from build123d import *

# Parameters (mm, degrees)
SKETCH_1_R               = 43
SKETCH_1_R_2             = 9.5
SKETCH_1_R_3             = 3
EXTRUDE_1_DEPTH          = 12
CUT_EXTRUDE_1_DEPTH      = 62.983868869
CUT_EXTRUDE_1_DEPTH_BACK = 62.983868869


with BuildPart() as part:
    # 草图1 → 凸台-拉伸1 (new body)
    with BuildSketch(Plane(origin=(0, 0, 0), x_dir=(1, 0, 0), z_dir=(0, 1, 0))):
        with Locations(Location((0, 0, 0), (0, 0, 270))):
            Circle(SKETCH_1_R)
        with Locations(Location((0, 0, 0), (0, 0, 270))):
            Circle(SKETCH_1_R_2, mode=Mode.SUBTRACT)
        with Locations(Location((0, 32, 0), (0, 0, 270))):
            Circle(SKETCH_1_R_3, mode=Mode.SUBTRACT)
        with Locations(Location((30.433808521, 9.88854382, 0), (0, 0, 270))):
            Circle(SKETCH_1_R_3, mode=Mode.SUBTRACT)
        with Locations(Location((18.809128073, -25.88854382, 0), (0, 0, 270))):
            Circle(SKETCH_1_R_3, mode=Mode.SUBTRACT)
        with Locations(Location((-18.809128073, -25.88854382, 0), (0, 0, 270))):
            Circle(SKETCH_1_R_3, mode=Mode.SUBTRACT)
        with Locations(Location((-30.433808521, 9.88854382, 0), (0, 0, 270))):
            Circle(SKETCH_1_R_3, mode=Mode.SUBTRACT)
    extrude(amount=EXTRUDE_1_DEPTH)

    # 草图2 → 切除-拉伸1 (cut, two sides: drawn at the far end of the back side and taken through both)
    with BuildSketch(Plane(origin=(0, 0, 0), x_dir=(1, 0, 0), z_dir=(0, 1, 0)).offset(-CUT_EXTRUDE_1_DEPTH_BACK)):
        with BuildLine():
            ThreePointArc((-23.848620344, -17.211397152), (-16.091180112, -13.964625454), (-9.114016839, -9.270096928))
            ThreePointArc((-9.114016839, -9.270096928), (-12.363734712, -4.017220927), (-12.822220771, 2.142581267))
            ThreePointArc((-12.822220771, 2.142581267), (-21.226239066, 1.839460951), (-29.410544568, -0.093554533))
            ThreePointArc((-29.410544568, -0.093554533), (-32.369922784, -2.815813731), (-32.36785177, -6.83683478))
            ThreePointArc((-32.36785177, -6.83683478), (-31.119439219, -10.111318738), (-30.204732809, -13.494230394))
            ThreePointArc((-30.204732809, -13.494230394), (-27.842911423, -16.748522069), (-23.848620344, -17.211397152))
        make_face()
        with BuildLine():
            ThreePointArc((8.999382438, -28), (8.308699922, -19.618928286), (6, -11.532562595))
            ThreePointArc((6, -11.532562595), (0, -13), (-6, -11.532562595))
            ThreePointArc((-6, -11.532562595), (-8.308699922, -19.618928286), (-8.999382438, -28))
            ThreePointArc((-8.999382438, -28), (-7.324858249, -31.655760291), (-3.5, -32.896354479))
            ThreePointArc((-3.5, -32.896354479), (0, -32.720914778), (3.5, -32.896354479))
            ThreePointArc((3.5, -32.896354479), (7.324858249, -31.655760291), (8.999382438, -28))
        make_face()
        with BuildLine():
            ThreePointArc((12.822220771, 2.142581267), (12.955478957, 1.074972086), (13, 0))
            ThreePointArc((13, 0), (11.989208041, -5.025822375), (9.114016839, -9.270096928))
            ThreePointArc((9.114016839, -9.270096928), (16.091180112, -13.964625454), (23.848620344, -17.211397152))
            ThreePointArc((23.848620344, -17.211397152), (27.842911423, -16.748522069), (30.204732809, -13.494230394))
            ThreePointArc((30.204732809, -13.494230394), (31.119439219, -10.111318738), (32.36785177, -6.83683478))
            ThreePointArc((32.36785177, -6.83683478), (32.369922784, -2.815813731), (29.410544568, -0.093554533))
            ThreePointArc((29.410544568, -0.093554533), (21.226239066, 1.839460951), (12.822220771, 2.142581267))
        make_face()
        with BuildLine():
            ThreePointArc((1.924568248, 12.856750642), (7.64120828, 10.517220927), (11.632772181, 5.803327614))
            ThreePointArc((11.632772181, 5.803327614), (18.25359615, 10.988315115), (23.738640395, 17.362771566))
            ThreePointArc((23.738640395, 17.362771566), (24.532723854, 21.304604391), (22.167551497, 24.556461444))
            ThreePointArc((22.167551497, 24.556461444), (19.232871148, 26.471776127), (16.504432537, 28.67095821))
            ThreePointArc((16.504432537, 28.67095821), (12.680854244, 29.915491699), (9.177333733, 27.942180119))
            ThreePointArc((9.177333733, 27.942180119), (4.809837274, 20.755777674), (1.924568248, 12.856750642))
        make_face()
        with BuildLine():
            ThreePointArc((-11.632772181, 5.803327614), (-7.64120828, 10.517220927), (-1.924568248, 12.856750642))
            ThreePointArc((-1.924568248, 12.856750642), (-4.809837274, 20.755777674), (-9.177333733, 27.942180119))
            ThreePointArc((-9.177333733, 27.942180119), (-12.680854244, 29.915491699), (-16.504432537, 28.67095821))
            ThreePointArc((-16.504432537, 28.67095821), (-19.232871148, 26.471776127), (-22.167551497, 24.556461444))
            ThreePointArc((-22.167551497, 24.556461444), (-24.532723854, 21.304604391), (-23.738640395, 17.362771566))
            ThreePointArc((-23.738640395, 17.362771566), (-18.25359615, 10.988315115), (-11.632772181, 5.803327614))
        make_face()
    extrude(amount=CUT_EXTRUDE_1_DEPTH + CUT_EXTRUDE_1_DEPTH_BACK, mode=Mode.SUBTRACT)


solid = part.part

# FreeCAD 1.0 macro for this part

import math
import FreeCAD as App
import Part
import Sketcher

doc = App.newDocument("Part")
params = doc.addObject("Spreadsheet::Sheet", "Params")
for row, (alias, value) in enumerate([
    ("sketch1_diameter", "86 mm"),
    ("sketch1_diameter2", "6 mm"),
    ("sketch1_diameter3", "19 mm"),
    ("pad1_length", "12 mm"),
    ("sketch2_radius", "43 mm"),
    ("sketch2_radius2", "13 mm"),
    ("sketch2_radius3", "5 mm"),
    ("sketch2_radius4", "35 mm"),
], start=1):
    params.set(f"A{row}", alias)
    params.set(f"B{row}", "=" + value)
    params.setAlias(f"B{row}", alias)

body = doc.addObject("PartDesign::Body", "Body")

# Sketch on XZ plane
sketch1 = doc.addObject("Sketcher::SketchObject", "Sketch")
body.addObject(sketch1)
sketch1.AttachmentSupport = (doc.XZ_Plane, [""])
sketch1.MapMode = "FlatFace"
sketch1.addGeometry([
    Part.Circle(App.Vector(0, 0, 0), App.Vector(0, 0, 1), 43),  # 0
    Part.Circle(App.Vector(-30.4, -9.9, 0), App.Vector(0, 0, 1), 3),  # 1
    Part.Circle(App.Vector(-18.8, 25.9, 0), App.Vector(0, 0, 1), 3),  # 2
    Part.Circle(App.Vector(0, -32, 0), App.Vector(0, 0, 1), 3),  # 3
    Part.Circle(App.Vector(30.4, -9.9, 0), App.Vector(0, 0, 1), 3),  # 4
    Part.Circle(App.Vector(0, 0, 0), App.Vector(0, 0, 1), 9.5),  # 5
    Part.Circle(App.Vector(18.8, 25.9, 0), App.Vector(0, 0, 1), 3),  # 6
], False)
sketch1.addConstraint([
    Sketcher.Constraint("Coincident", 0, 3, -1, 1),
    Sketcher.Constraint("Coincident", 5, 3, -1, 1),
    Sketcher.Constraint("Equal", 1, 2),
    Sketcher.Constraint("Equal", 2, 3),
    Sketcher.Constraint("Equal", 3, 4),
    Sketcher.Constraint("Equal", 4, 6),
    Sketcher.Constraint("Symmetric", 1, 3, 4, 3, -2),
    Sketcher.Constraint("Symmetric", 2, 3, 6, 3, -2),
    Sketcher.Constraint("PointOnObject", 3, 3, -2),
    Sketcher.Constraint("Diameter", 0, 86.0),
    Sketcher.Constraint("Diameter", 1, 6.0),
    Sketcher.Constraint("Diameter", 5, 19.0),
    Sketcher.Constraint("DistanceY", 3, 3, -1, 1, 32.0),
    Sketcher.Constraint("DistanceX", 1, 3, -1, 1, 30.433809),
    Sketcher.Constraint("DistanceX", 2, 3, -1, 1, 18.809128),
    Sketcher.Constraint("DistanceY", 1, 3, -1, 1, 9.888544),
    Sketcher.Constraint("DistanceY", -1, 1, 2, 3, 25.888544),
])
sketch1.setExpression("Constraints[9]", "Params.sketch1_diameter")
sketch1.setExpression("Constraints[10]", "Params.sketch1_diameter2")
sketch1.setExpression("Constraints[11]", "Params.sketch1_diameter3")
pad1 = doc.addObject("PartDesign::Pad", "Pad")
body.addObject(pad1)
pad1.Profile = sketch1
pad1.setExpression("Length", "Params.pad1_length")
pad1.Reversed = True

# Sketch on XZ plane
sketch2 = doc.addObject("Sketcher::SketchObject", "Sketch001")
body.addObject(sketch2)
sketch2.AttachmentSupport = (doc.XZ_Plane, [""])
sketch2.MapMode = "FlatFace"
sketch2.addGeometry([
    Part.ArcOfCircle(Part.Circle(App.Vector(-36.5, -23.9, 0), App.Vector(0, 0, 1), 43), math.radians(50), math.radians(73)),  # 0
    Part.ArcOfCircle(Part.Circle(App.Vector(0, 0, 0), App.Vector(0, 0, 1), 13), math.radians(135), math.radians(189)),  # 1
    Part.ArcOfCircle(Part.Circle(App.Vector(-15.5, 40.8, 0), App.Vector(0, 0, 1), 43), math.radians(-109), math.radians(-86)),  # 2
    Part.ArcOfCircle(Part.Circle(App.Vector(-27.8, 4.8, 0), App.Vector(0, 0, 1), 5), math.radians(156), math.radians(251)),  # 3
    Part.ArcOfCircle(Part.Circle(App.Vector(-64.4, 20.9, 0), App.Vector(0, 0, 1), 35), math.radians(-23.74), math.radians(-12.26)),  # 4
    Part.ArcOfCircle(Part.Circle(App.Vector(-25.3, 12.4, 0), App.Vector(0, 0, 1), 5), math.radians(73), math.radians(168)),  # 5
    Part.ArcOfCircle(Part.Circle(App.Vector(-34, 27.3, 0), App.Vector(0, 0, 1), 43), math.radians(-22), math.radians(1)),  # 6
    Part.ArcOfCircle(Part.Circle(App.Vector(0, 0, 0), App.Vector(0, 0, 1), 13), math.radians(63), math.radians(117)),  # 7
    Part.ArcOfCircle(Part.Circle(App.Vector(34, 27.3, 0), App.Vector(0, 0, 1), 43), math.radians(179), math.radians(202)),  # 8
    Part.ArcOfCircle(Part.Circle(App.Vector(-4, 27.9, 0), App.Vector(0, 0, 1), 5), math.radians(84), math.radians(179)),  # 9
    Part.ArcOfCircle(Part.Circle(App.Vector(0, 67.7, 0), App.Vector(0, 0, 1), 35), math.radians(-95.74), math.radians(-84.26)),  # 10
    Part.ArcOfCircle(Part.Circle(App.Vector(4, 27.9, 0), App.Vector(0, 0, 1), 5), math.radians(1), math.radians(96)),  # 11
    Part.ArcOfCircle(Part.Circle(App.Vector(0, 0, 0), App.Vector(0, 0, 1), 13), math.radians(-9.49), math.radians(0)),  # 12
    Part.ArcOfCircle(Part.Circle(App.Vector(0, 0, 0), App.Vector(0, 0, 1), 13), math.radians(0), math.radians(45)),  # 13
    Part.ArcOfCircle(Part.Circle(App.Vector(36.5, -23.9, 0), App.Vector(0, 0, 1), 43), math.radians(107), math.radians(130)),  # 14
    Part.ArcOfCircle(Part.Circle(App.Vector(25.3, 12.4, 0), App.Vector(0, 0, 1), 5), math.radians(12), math.radians(107)),  # 15
    Part.ArcOfCircle(Part.Circle(App.Vector(64.4, 20.9, 0), App.Vector(0, 0, 1), 35), math.radians(-167.74), math.radians(-156.26)),  # 16
    Part.ArcOfCircle(Part.Circle(App.Vector(27.8, 4.8, 0), App.Vector(0, 0, 1), 5), math.radians(-71), math.radians(24)),  # 17
    Part.ArcOfCircle(Part.Circle(App.Vector(15.5, 40.8, 0), App.Vector(0, 0, 1), 43), math.radians(-94), math.radians(-71)),  # 18
    Part.ArcOfCircle(Part.Circle(App.Vector(0, 0, 0), App.Vector(0, 0, 1), 13), math.radians(-81), math.radians(-27)),  # 19
    Part.ArcOfCircle(Part.Circle(App.Vector(-11.4, -42.1, 0), App.Vector(0, 0, 1), 43), math.radians(35), math.radians(58)),  # 20
    Part.ArcOfCircle(Part.Circle(App.Vector(19.6, -20.2, 0), App.Vector(0, 0, 1), 5), math.radians(-60), math.radians(35)),  # 21
    Part.ArcOfCircle(Part.Circle(App.Vector(39.8, -54.8, 0), App.Vector(0, 0, 1), 35), math.radians(120.26), math.radians(131.74)),  # 22
    Part.ArcOfCircle(Part.Circle(App.Vector(13.2, -24.9, 0), App.Vector(0, 0, 1), 5), math.radians(-143), math.radians(-48)),  # 23
    Part.ArcOfCircle(Part.Circle(App.Vector(43.6, -2.1, 0), App.Vector(0, 0, 1), 43), math.radians(-166), math.radians(-143)),  # 24
    Part.ArcOfCircle(Part.Circle(App.Vector(0, 0, 0), App.Vector(0, 0, 1), 13), math.radians(-153), math.radians(-99)),  # 25
    Part.ArcOfCircle(Part.Circle(App.Vector(-43.6, -2.1, 0), App.Vector(0, 0, 1), 43), math.radians(-37), math.radians(-14)),  # 26
    Part.ArcOfCircle(Part.Circle(App.Vector(-13.2, -24.9, 0), App.Vector(0, 0, 1), 5), math.radians(-132), math.radians(-37)),  # 27
    Part.ArcOfCircle(Part.Circle(App.Vector(-39.8, -54.8, 0), App.Vector(0, 0, 1), 35), math.radians(48.26), math.radians(59.74)),  # 28
    Part.ArcOfCircle(Part.Circle(App.Vector(-19.6, -20.2, 0), App.Vector(0, 0, 1), 5), math.radians(145), math.radians(240)),  # 29
    Part.ArcOfCircle(Part.Circle(App.Vector(11.4, -42.1, 0), App.Vector(0, 0, 1), 43), math.radians(122), math.radians(145)),  # 30
], False)
sketch2.addConstraint([
    Sketcher.Constraint("Coincident", 0, 1, 1, 1),
    Sketcher.Constraint("Coincident", 1, 2, 2, 2),
    Sketcher.Constraint("Tangent", 2, 1, 3, 2),
    Sketcher.Constraint("Tangent", 3, 1, 4, 1),
    Sketcher.Constraint("Tangent", 4, 2, 5, 2),
    Sketcher.Constraint("Tangent", 5, 1, 0, 2),
    Sketcher.Constraint("Coincident", 6, 1, 7, 1),
    Sketcher.Constraint("Coincident", 7, 2, 8, 2),
    Sketcher.Constraint("Tangent", 8, 1, 9, 2),
    Sketcher.Constraint("Tangent", 9, 1, 10, 1),
    Sketcher.Constraint("Tangent", 10, 2, 11, 2),
    Sketcher.Constraint("Tangent", 11, 1, 6, 2),
    Sketcher.Constraint("Tangent", 12, 2, 13, 1),
    Sketcher.Constraint("Coincident", 13, 2, 14, 2),
    Sketcher.Constraint("Tangent", 14, 1, 15, 2),
    Sketcher.Constraint("Tangent", 15, 1, 16, 1),
    Sketcher.Constraint("Tangent", 16, 2, 17, 2),
    Sketcher.Constraint("Tangent", 17, 1, 18, 2),
    Sketcher.Constraint("Coincident", 18, 1, 12, 1),
    Sketcher.Constraint("Coincident", 19, 2, 20, 2),
    Sketcher.Constraint("Tangent", 20, 1, 21, 2),
    Sketcher.Constraint("Tangent", 21, 1, 22, 1),
    Sketcher.Constraint("Tangent", 22, 2, 23, 2),
    Sketcher.Constraint("Tangent", 23, 1, 24, 2),
    Sketcher.Constraint("Coincident", 24, 1, 19, 1),
    Sketcher.Constraint("Coincident", 25, 2, 26, 2),
    Sketcher.Constraint("Tangent", 26, 1, 27, 2),
    Sketcher.Constraint("Tangent", 27, 1, 28, 1),
    Sketcher.Constraint("Tangent", 28, 2, 29, 2),
    Sketcher.Constraint("Tangent", 29, 1, 30, 2),
    Sketcher.Constraint("Coincident", 30, 1, 25, 1),
    Sketcher.Constraint("Coincident", 1, 3, -1, 1),
    Sketcher.Constraint("Coincident", 7, 3, -1, 1),
    Sketcher.Constraint("Coincident", 12, 3, -1, 1),
    Sketcher.Constraint("Coincident", 19, 3, -1, 1),
    Sketcher.Constraint("Coincident", 25, 3, -1, 1),
    Sketcher.Constraint("Equal", 0, 2),
    Sketcher.Constraint("Equal", 3, 5),
    Sketcher.Constraint("Equal", 2, 6),
    Sketcher.Constraint("Equal", 1, 7),
    Sketcher.Constraint("Equal", 6, 8),
    Sketcher.Constraint("Equal", 5, 9),
    Sketcher.Constraint("Equal", 4, 10),
    Sketcher.Constraint("Equal", 9, 11),
    Sketcher.Constraint("Equal", 7, 12),
    Sketcher.Constraint("Equal", 12, 13),
    Sketcher.Constraint("Equal", 8, 14),
    Sketcher.Constraint("Equal", 11, 15),
    Sketcher.Constraint("Equal", 10, 16),
    Sketcher.Constraint("Equal", 15, 17),
    Sketcher.Constraint("Equal", 14, 18),
    Sketcher.Constraint("Equal", 13, 19),
    Sketcher.Constraint("Equal", 18, 20),
    Sketcher.Constraint("Equal", 17, 21),
    Sketcher.Constraint("Equal", 16, 22),
    Sketcher.Constraint("Equal", 21, 23),
    Sketcher.Constraint("Equal", 20, 24),
    Sketcher.Constraint("Equal", 19, 25),
    Sketcher.Constraint("Equal", 24, 26),
    Sketcher.Constraint("Equal", 23, 27),
    Sketcher.Constraint("Equal", 22, 28),
    Sketcher.Constraint("Equal", 27, 29),
    Sketcher.Constraint("Equal", 26, 30),
    Sketcher.Constraint("Symmetric", 6, 3, 8, 3, -2),
    Sketcher.Constraint("Symmetric", 0, 3, 14, 3, -2),
    Sketcher.Constraint("Symmetric", 4, 3, 16, 3, -2),
    Sketcher.Constraint("Symmetric", 2, 3, 18, 3, -2),
    Sketcher.Constraint("Symmetric", 24, 3, 26, 3, -2),
    Sketcher.Constraint("Symmetric", 22, 3, 28, 3, -2),
    Sketcher.Constraint("Symmetric", 20, 3, 30, 3, -2),
    Sketcher.Constraint("PointOnObject", 10, 3, -2),
    Sketcher.Constraint("PointOnObject", 12, 2, -1),
    Sketcher.Constraint("Radius", 0, 43.0),
    Sketcher.Constraint("Radius", 1, 13.0),
    Sketcher.Constraint("Radius", 3, 5.0),
    Sketcher.Constraint("Radius", 4, 35.0),
    Sketcher.Constraint("DistanceX", 9, 3, -1, 1, 4.0),
    Sketcher.Constraint("DistanceX", -1, 1, 6, 1, 6.0),
    Sketcher.Constraint("DistanceY", -1, 1, 8, 1, 28.0),
    Sketcher.Constraint("DistanceY", 0, 3, -1, 1, 23.887819),
    Sketcher.Constraint("DistanceX", 2, 3, -1, 1, 15.48172),
    Sketcher.Constraint("DistanceY", -1, 1, 5, 3, 12.432419),
    Sketcher.Constraint("DistanceY", 21, 3, -1, 1, 20.23776),
    Sketcher.Constraint("DistanceY", 22, 3, -1, 1, 54.787371),
    Sketcher.Constraint("DistanceX", -1, 1, 23, 3, 13.175729),
    Sketcher.Constraint("DistanceX", 1, 2, -1, 1, 12.822221),
    Sketcher.Constraint("DistanceX", 3, 1, -1, 1, 32.367852),
    Sketcher.Constraint("DistanceY", -1, 1, 4, 2, 13.49423),
    Sketcher.Constraint("DistanceX", -1, 1, 20, 1, 23.73864),
    Sketcher.Constraint("DistanceY", 20, 1, -1, 1, 17.362772),
    Sketcher.Constraint("DistanceY", 23, 1, -1, 1, 27.94218),
])
sketch2.setExpression("Constraints[72]", "Params.sketch2_radius")
sketch2.setExpression("Constraints[73]", "Params.sketch2_radius2")
sketch2.setExpression("Constraints[74]", "Params.sketch2_radius3")
sketch2.setExpression("Constraints[75]", "Params.sketch2_radius4")
pocket1 = doc.addObject("PartDesign::Pocket", "Pocket")
body.addObject(pocket1)
pocket1.Profile = sketch2
pocket1.Type = "ThroughAll"
pocket1.Midplane = True

doc.recompute()
